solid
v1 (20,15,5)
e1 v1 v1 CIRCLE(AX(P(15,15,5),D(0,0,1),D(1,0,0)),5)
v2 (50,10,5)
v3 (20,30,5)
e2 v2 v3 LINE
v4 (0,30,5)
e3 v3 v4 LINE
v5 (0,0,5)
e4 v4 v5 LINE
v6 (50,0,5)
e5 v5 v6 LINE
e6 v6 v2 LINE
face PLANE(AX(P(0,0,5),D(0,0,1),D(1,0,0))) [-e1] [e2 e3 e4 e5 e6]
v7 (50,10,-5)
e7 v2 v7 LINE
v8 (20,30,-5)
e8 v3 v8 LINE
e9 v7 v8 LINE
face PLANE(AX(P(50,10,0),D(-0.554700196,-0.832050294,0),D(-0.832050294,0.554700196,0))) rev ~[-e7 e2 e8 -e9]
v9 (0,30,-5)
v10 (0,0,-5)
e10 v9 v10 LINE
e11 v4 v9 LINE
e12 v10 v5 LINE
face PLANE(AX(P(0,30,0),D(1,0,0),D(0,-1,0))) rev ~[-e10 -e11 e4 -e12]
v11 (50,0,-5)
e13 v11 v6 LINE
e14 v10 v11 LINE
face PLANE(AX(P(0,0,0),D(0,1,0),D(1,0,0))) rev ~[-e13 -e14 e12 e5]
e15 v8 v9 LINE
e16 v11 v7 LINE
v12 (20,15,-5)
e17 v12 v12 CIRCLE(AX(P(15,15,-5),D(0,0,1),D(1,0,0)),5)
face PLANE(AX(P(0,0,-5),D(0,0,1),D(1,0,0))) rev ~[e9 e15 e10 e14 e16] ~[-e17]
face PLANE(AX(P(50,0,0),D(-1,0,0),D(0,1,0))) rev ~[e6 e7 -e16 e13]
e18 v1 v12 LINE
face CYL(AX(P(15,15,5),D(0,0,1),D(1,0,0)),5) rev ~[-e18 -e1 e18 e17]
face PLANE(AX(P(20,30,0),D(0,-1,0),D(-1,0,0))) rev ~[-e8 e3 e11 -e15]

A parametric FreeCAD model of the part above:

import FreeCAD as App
import Part
import Sketcher

V = App.Vector


def add_polygon(sketch, points):
    """Adds a closed chain of lines whose ends are joined by coincident constraints."""
    first, n = sketch.GeometryCount, len(points)
    for a, b in zip(points, points[1:] + points[:1]):
        sketch.addGeometry(Part.LineSegment(App.Vector(*a, 0), App.Vector(*b, 0)), False)
    for i in range(n):
        sketch.addConstraint(Sketcher.Constraint("Coincident", first + i, 2, first + (i + 1) % n, 1))

doc = App.newDocument("Part")
body = doc.addObject("PartDesign::Body", "Body")

# Sketch on XY plane
sketch1 = doc.addObject("Sketcher::SketchObject", "Sketch")
body.addObject(sketch1)
sketch1.AttachmentSupport = (doc.XY_Plane, [""])
sketch1.MapMode = "FlatFace"
add_polygon(sketch1, [(0, 30), (0, 0), (50, 0), (50, 10), (20, 30)])  # lines 0-4
sketch1.addConstraint([
    Sketcher.Constraint("Vertical", 0),
    Sketcher.Constraint("Horizontal", 1),
    Sketcher.Constraint("Vertical", 2),
    Sketcher.Constraint("Horizontal", 4),
    Sketcher.Constraint("Coincident", 0, 2, -1, 1),
    Sketcher.Constraint("DistanceX", 1, 1, 1, 2, 50.0),
    Sketcher.Constraint("DistanceX", 4, 2, 4, 1, 20.0),
    Sketcher.Constraint("DistanceY", 0, 2, 0, 1, 30.0),
    Sketcher.Constraint("DistanceY", 2, 1, 2, 2, 10.0),
])
pad1 = doc.addObject("PartDesign::Pad", "Pad")
body.addObject(pad1)
pad1.Profile = sketch1
pad1.Length = 10
pad1.Midplane = True

# Sketch on XY plane
sketch2 = doc.addObject("Sketcher::SketchObject", "Sketch001")
body.addObject(sketch2)
sketch2.AttachmentSupport = (doc.XY_Plane, [""])
sketch2.MapMode = "FlatFace"
sketch2.AttachmentOffset = App.Placement(V(0, 0, 5), App.Rotation())
sketch2.addGeometry(Part.Circle(V(15, 15, 0), V(0, 0, 1), 5), False)
sketch2.addConstraint([
    Sketcher.Constraint("Diameter", 0, 10.0),
    Sketcher.Constraint("DistanceX", -1, 1, 0, 3, 15.0),
    Sketcher.Constraint("DistanceY", -1, 1, 0, 3, 15.0),
])
pocket1 = doc.addObject("PartDesign::Pocket", "Pocket")
body.addObject(pocket1)
pocket1.Profile = sketch2
pocket1.Length = 10

doc.recompute()
